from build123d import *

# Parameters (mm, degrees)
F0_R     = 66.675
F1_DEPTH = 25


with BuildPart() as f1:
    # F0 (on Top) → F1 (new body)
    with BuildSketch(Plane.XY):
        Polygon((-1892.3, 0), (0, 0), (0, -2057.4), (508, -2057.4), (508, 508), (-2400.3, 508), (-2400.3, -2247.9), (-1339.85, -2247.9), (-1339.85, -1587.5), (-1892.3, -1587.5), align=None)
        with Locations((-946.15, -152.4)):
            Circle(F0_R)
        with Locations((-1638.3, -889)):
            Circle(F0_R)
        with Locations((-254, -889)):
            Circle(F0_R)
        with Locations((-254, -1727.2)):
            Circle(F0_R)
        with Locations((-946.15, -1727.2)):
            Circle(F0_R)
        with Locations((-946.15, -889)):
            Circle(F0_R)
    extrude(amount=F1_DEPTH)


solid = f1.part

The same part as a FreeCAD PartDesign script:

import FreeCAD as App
import Part
import Sketcher

V = App.Vector
Q = App.Units.Quantity


def add_polygon(sketch, points):
    """Adds a closed chain of lines whose ends are joined by coincident constraints."""
    first, n = sketch.GeometryCount, len(points)
    for a, b in zip(points, points[1:] + points[:1]):
        sketch.addGeometry(Part.LineSegment(App.Vector(*a, 0), App.Vector(*b, 0)), False)
    for i in range(n):
        sketch.addConstraint(Sketcher.Constraint("Coincident", first + i, 2, first + (i + 1) % n, 1))

doc = App.newDocument("Part")
body = doc.addObject("PartDesign::Body", "Body")
body.AllowCompound = True

# Sketch on XY plane
sketch1 = body.newObject("Sketcher::SketchObject", "Sketch")
sketch1.AttachmentSupport = (doc.getObject("XY_Plane"), [""])
sketch1.MapMode = "FlatFace"
add_polygon(sketch1, [(-1892.3, 0), (0, 0), (0, -2057.4), (508, -2057.4), (508, 508), (-2400.3, 508), (-2400.3, -2247.9), (-1339.85, -2247.9), (-1339.85, -1587.5), (-1892.3, -1587.5)])  # lines 0-9
sketch1.addGeometry(Part.Circle(V(-946.15, -152.4, 0), V(0, 0, 1), 66.675), False)  # 10
sketch1.addGeometry(Part.Circle(V(-1638.3, -889, 0), V(0, 0, 1), 66.675), False)  # 11
sketch1.addGeometry(Part.Circle(V(-254, -889, 0), V(0, 0, 1), 66.675), False)  # 12
sketch1.addGeometry(Part.Circle(V(-254, -1727.2, 0), V(0, 0, 1), 66.675), False)  # 13
sketch1.addGeometry(Part.Circle(V(-946.15, -1727.2, 0), V(0, 0, 1), 66.675), False)  # 14
sketch1.addGeometry(Part.Circle(V(-946.15, -889, 0), V(0, 0, 1), 66.675), False)  # 15
sketch1.addConstraint([
    Sketcher.Constraint("Horizontal", 0),
    Sketcher.Constraint("Vertical", 1),
    Sketcher.Constraint("Horizontal", 2),
    Sketcher.Constraint("Vertical", 3),
    Sketcher.Constraint("Horizontal", 4),
    Sketcher.Constraint("Vertical", 5),
    Sketcher.Constraint("Horizontal", 6),
    Sketcher.Constraint("Vertical", 7),
    Sketcher.Constraint("Horizontal", 8),
    Sketcher.Constraint("Vertical", 9),
    Sketcher.Constraint("Coincident", 0, 2, -1, 1),
    Sketcher.Constraint("Equal", 10, 11),
    Sketcher.Constraint("Equal", 11, 12),
    Sketcher.Constraint("Equal", 12, 13),
    Sketcher.Constraint("Equal", 13, 14),
    Sketcher.Constraint("Equal", 14, 15),
    Sketcher.Constraint("Horizontal", 11, 3, 12, 3),
    Sketcher.Constraint("Horizontal", 13, 3, 14, 3),
    Sketcher.Constraint("Horizontal", 12, 3, 15, 3),
    Sketcher.Constraint("Vertical", 12, 3, 13, 3),
    Sketcher.Constraint("Vertical", 10, 3, 14, 3),
    Sketcher.Constraint("Vertical", 14, 3, 15, 3),
    Sketcher.Constraint("Diameter", 10, Q("5.25 in")),
    Sketcher.Constraint("DistanceX", 2, 1, 2, 2, Q("20 in")),
    Sketcher.Constraint("DistanceY", 1, 2, 1, 1, Q("81 in")),
    Sketcher.Constraint("DistanceY", 3, 1, 3, 2, Q("101 in")),
    Sketcher.Constraint("DistanceY", 7, 1, 7, 2, Q("26 in")),
    Sketcher.Constraint("DistanceX", 0, 1, 0, 2, Q("74.5 in")),
    Sketcher.Constraint("DistanceX", 4, 2, 4, 1, Q("114.5 in")),
    Sketcher.Constraint("DistanceY", 5, 2, 5, 1, Q("108.5 in")),
    Sketcher.Constraint("DistanceY", 10, 3, -1, 1, Q("6 in")),
    Sketcher.Constraint("DistanceY", 11, 3, -1, 1, Q("35 in")),
    Sketcher.Constraint("DistanceX", 12, 3, -1, 1, Q("10 in")),
    Sketcher.Constraint("DistanceY", 13, 3, -1, 1, Q("68 in")),
    Sketcher.Constraint("DistanceX", 4, 2, 11, 3, Q("30 in")),
    Sketcher.Constraint("DistanceX", 6, 1, 6, 2, Q("41.75 in")),
    Sketcher.Constraint("DistanceX", 6, 2, 14, 3, Q("15.5 in")),
])
pad1 = body.newObject("PartDesign::Pad", "Pad")
pad1.Profile = sketch1
pad1.Length = 25

doc.recompute()
